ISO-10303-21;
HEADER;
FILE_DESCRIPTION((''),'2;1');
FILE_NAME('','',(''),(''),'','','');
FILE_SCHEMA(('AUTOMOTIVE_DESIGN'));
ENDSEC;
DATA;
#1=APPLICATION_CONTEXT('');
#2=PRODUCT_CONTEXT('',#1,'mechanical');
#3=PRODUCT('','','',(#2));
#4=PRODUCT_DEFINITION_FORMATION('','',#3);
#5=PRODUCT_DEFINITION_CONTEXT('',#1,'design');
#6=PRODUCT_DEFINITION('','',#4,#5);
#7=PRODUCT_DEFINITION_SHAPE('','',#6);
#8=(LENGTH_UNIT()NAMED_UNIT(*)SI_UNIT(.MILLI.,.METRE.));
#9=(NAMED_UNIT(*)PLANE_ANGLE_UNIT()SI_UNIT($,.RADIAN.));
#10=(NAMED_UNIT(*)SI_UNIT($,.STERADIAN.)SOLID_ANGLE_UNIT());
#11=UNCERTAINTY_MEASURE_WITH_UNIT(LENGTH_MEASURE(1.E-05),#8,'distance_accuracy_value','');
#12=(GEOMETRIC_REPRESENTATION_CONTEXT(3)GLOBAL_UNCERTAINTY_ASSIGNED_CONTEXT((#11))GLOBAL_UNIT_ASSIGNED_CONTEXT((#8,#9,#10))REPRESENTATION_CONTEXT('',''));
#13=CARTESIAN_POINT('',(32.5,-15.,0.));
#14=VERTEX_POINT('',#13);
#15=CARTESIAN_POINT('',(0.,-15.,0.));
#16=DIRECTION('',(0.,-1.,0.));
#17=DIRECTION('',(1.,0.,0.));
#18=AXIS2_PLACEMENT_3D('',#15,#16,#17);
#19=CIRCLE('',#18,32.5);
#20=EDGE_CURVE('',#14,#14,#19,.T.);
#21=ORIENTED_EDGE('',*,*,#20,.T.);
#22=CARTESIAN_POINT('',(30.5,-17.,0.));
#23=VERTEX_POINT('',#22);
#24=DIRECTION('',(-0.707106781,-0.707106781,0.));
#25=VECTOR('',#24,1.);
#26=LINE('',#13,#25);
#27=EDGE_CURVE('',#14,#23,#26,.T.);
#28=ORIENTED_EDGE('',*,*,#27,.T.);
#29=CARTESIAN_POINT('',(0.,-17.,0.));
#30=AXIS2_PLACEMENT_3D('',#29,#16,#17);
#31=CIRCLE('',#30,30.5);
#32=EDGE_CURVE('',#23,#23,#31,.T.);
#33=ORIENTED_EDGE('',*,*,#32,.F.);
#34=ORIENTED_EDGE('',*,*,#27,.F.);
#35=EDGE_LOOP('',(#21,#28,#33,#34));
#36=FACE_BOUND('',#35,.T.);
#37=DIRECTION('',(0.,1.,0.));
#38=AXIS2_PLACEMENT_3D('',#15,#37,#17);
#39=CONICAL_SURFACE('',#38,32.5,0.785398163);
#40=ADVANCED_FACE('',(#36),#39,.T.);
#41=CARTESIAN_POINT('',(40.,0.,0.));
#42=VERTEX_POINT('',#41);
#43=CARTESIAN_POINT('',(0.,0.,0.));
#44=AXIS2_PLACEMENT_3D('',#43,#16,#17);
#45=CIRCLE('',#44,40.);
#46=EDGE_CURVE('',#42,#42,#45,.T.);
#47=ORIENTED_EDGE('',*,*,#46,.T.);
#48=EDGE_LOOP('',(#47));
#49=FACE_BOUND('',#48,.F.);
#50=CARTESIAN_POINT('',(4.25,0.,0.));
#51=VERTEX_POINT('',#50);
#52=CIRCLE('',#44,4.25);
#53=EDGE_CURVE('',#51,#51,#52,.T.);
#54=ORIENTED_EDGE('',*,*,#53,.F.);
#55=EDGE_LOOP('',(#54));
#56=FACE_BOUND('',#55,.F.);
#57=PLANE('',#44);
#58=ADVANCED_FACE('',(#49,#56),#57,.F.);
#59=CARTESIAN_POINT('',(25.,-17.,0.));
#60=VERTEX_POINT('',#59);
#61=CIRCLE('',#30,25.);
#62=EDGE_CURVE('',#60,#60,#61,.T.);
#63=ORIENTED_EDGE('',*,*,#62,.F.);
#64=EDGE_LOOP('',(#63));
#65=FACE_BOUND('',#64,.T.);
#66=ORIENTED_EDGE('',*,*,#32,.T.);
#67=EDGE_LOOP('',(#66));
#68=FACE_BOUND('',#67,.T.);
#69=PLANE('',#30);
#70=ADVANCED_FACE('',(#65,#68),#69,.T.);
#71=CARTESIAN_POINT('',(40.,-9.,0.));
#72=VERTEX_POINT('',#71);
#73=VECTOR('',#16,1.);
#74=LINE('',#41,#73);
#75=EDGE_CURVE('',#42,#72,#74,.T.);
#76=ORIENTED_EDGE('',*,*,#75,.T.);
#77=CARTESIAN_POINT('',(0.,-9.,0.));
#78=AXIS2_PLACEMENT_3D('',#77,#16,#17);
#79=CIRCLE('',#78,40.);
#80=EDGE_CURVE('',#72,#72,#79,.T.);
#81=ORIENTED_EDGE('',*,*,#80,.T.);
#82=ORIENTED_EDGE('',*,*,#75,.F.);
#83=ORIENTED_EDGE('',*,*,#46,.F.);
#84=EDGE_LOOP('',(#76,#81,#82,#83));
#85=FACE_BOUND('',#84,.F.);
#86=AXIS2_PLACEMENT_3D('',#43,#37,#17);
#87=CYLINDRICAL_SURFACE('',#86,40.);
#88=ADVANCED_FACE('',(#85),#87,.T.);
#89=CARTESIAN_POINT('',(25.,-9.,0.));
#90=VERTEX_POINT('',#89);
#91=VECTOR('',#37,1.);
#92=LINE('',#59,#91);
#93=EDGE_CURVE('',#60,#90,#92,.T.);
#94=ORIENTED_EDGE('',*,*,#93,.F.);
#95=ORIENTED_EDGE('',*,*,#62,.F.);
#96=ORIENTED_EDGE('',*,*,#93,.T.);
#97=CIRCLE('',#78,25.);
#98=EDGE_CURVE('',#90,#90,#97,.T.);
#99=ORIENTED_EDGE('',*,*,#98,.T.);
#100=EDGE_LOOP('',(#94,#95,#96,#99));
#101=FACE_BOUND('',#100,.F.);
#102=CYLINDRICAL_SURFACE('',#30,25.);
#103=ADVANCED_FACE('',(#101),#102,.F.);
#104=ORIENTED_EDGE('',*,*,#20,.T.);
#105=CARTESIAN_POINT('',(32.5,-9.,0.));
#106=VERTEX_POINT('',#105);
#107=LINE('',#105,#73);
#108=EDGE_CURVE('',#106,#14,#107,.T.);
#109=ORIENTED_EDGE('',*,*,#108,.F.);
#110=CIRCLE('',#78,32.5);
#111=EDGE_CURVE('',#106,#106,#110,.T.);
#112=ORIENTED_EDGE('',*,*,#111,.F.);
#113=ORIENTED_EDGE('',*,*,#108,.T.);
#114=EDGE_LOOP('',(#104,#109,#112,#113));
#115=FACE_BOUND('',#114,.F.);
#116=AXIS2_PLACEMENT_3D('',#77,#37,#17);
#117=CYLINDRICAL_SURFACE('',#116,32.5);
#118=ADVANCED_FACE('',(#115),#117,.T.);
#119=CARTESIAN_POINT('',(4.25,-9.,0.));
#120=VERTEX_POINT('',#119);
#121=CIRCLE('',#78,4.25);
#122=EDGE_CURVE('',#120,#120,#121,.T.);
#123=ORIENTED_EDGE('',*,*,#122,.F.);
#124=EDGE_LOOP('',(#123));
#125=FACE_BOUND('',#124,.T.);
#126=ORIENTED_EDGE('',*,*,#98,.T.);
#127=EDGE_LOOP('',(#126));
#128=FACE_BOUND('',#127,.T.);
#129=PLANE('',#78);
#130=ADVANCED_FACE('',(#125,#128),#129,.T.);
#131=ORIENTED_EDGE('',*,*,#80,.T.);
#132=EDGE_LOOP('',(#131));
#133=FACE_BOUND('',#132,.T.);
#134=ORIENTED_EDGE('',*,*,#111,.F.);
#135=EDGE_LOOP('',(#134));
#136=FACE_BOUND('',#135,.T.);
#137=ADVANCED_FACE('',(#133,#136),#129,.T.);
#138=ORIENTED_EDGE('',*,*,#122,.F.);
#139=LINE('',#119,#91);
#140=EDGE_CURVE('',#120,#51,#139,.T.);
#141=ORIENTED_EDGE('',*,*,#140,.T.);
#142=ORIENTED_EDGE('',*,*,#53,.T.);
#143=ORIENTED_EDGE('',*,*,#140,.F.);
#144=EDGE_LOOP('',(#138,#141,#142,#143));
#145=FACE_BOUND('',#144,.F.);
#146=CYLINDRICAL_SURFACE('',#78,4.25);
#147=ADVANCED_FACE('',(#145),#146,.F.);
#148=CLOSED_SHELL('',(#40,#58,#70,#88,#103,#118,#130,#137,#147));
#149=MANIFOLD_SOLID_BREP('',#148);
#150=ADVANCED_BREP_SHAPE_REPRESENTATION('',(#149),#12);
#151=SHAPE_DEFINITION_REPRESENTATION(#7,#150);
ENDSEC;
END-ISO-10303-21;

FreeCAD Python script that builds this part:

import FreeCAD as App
import Part
import Sketcher
from FreeCAD import Vector
Q = App.Units.Quantity


def edges_at(feature, points):
    """Names of the edges that pass closest to the given points."""
    edges = feature.Shape.Edges
    near = lambda p: min(range(len(edges)), key=lambda i: edges[i].distToShape(Part.Vertex(*p))[0])
    return sorted({f"Edge{near(p) + 1}" for p in points})

doc = App.newDocument("Part")
body = doc.addObject("PartDesign::Body", "Body")

sketch1 = body.newObject("Sketcher::SketchObject", "Sketch")
sketch1.AttachmentSupport = (doc.getObject("XZ_Plane"), [""])
sketch1.MapMode = "FlatFace"
sketch1.addGeometry(Part.Circle(Vector(0, 0, 0), Vector(0, 0, 1), 40), False)
sketch1.addConstraint([
    Sketcher.Constraint("Coincident", 0, 3, -1, 1),
    Sketcher.Constraint("Diameter", 0, Q("80 mm")),
])
pad1 = body.newObject("PartDesign::Pad", "Pad")
pad1.Profile = sketch1
pad1.Length = 9

sketch2 = body.newObject("Sketcher::SketchObject", "Sketch001")
sketch2.AttachmentSupport = (doc.getObject("XZ_Plane"), [""])
sketch2.MapMode = "FlatFace"
sketch2.AttachmentOffset = App.Placement(Vector(0, 0, 9), App.Rotation())
sketch2.addGeometry(Part.Circle(Vector(0, 0, 0), Vector(0, 0, 1), 32.5), False)
sketch2.addConstraint([
    Sketcher.Constraint("Coincident", 0, 3, -1, 1),
    Sketcher.Constraint("Diameter", 0, Q("65 mm")),
])
pad2 = body.newObject("PartDesign::Pad", "Pad001")
pad2.Profile = sketch2
pad2.Length = 8

sketch3 = body.newObject("Sketcher::SketchObject", "Sketch002")
sketch3.AttachmentSupport = (doc.getObject("XZ_Plane"), [""])
sketch3.MapMode = "FlatFace"
sketch3.AttachmentOffset = App.Placement(Vector(0, 0, 17), App.Rotation())
sketch3.addGeometry(Part.Circle(Vector(0, 0, 0), Vector(0, 0, 1), 25), False)
sketch3.addConstraint([
    Sketcher.Constraint("Coincident", 0, 3, -1, 1),
    Sketcher.Constraint("Diameter", 0, Q("50 mm")),
])
pocket1 = body.newObject("PartDesign::Pocket", "Pocket")
pocket1.Profile = sketch3
pocket1.Length = 8

sketch4 = body.newObject("Sketcher::SketchObject", "Sketch003")
sketch4.AttachmentSupport = (doc.getObject("XZ_Plane"), [""])
sketch4.MapMode = "FlatFace"
sketch4.AttachmentOffset = App.Placement(Vector(0, 0, 9), App.Rotation())
sketch4.addGeometry(Part.Circle(Vector(0, 0, 0), Vector(0, 0, 1), 4.25), False)
sketch4.addConstraint([
    Sketcher.Constraint("Coincident", 0, 3, -1, 1),
    Sketcher.Constraint("Diameter", 0, Q("8.5 mm")),
])
pocket2 = body.newObject("PartDesign::Pocket", "Pocket001")
pocket2.Profile = sketch4
pocket2.Length = 25
doc.recompute()

chamfer = body.newObject("PartDesign::Chamfer", "Chamfer")
chamfer.Base = (pocket2, edges_at(pocket2, [(-32.5, -17, 0)]))
chamfer.Size = 2

doc.recompute()
